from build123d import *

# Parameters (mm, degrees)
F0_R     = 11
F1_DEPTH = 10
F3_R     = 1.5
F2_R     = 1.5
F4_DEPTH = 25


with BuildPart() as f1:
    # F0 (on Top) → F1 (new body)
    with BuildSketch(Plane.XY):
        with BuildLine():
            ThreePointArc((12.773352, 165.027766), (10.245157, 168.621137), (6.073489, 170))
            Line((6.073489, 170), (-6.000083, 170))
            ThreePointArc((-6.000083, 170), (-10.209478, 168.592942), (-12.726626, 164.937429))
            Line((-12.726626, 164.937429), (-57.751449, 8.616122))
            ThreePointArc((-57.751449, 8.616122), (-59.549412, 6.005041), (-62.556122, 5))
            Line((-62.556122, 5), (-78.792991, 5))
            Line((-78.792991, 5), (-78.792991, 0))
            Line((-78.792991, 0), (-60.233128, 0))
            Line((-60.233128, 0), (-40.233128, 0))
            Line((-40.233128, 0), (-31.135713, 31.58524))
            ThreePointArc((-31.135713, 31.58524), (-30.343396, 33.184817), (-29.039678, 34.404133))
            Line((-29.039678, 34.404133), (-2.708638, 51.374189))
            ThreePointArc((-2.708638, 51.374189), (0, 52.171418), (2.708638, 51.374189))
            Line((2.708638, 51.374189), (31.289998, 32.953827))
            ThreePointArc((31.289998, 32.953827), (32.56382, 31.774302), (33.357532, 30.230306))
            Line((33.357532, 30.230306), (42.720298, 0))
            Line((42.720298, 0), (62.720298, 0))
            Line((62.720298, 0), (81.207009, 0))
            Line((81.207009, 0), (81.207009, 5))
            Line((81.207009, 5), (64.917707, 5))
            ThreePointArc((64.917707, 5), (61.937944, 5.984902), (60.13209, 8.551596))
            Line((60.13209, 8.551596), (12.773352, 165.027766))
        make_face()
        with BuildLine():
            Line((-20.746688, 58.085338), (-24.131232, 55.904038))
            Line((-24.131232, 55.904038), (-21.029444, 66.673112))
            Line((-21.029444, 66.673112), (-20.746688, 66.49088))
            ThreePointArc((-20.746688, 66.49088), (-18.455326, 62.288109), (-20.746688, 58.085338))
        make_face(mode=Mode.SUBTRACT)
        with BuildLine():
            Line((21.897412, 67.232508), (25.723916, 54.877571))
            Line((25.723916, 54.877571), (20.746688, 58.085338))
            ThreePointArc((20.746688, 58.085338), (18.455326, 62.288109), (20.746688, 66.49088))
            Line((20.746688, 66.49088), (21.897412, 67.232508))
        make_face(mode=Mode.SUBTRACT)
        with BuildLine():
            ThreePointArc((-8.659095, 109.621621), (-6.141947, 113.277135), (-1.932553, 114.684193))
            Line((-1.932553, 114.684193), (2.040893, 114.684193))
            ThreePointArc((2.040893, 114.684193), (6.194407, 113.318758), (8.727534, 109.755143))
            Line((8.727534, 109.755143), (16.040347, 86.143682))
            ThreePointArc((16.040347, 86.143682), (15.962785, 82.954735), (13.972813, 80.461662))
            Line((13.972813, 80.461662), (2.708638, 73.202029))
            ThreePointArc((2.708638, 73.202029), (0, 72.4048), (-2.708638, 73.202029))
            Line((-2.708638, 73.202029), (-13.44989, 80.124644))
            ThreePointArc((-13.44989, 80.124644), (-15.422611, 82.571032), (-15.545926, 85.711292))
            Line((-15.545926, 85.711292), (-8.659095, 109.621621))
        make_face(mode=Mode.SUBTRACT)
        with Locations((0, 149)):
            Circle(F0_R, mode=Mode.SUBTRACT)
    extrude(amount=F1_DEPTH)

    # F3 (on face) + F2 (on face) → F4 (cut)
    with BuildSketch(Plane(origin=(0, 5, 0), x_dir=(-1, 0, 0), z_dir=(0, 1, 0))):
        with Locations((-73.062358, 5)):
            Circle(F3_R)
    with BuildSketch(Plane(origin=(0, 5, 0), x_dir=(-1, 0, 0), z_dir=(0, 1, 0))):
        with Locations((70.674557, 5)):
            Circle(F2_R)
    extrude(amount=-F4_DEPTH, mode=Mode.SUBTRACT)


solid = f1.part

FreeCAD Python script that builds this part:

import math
import FreeCAD as App
import Part
import Sketcher

V = App.Vector

doc = App.newDocument("Part")
body = doc.addObject("PartDesign::Body", "Body")

# Sketch on XY plane
sketch1 = doc.addObject("Sketcher::SketchObject", "Sketch")
body.addObject(sketch1)
sketch1.AttachmentSupport = (doc.XY_Plane, [""])
sketch1.MapMode = "FlatFace"
sketch1.addGeometry(Part.ArcOfCircle(Part.Circle(V(6.073488, 162.999999, 0), V(0, 0, 1), 7.000001), math.radians(16.838858), math.radians(89.999992)), False)
sketch1.addGeometry(Part.LineSegment(V(6.073489, 170, 0), V(-6.000083, 170, 0)), False)
sketch1.addGeometry(Part.ArcOfCircle(Part.Circle(V(-6.000084, 163, 0), V(0, 0, 1), 7), math.radians(89.999994), math.radians(163.932144)), False)
sketch1.addGeometry(Part.LineSegment(V(-12.726626, 164.937429, 0), V(-57.751449, 8.616122, 0)), False)
sketch1.addGeometry(Part.ArcOfCircle(Part.Circle(V(-62.556121, 9.999999, 0), V(0, 0, 1), 4.999999), math.radians(-90.000007), math.radians(-16.06785)), False)
sketch1.addGeometry(Part.LineSegment(V(-62.556122, 5, 0), V(-78.792991, 5, 0)), False)
sketch1.addGeometry(Part.LineSegment(V(-78.792991, 5, 0), V(-78.792991, 0, 0)), False)
sketch1.addGeometry(Part.LineSegment(V(-78.792991, 0, 0), V(-40.233128, 0, 0)), False)
sketch1.addGeometry(Part.LineSegment(V(-40.233128, 0, 0), V(-31.135713, 31.58524, 0)), False)
sketch1.addGeometry(Part.ArcOfCircle(Part.Circle(V(-26.331042, 30.201364, 0), V(0, 0, 1), 4.999997), math.radians(122.801311), math.radians(163.932161)), False)
sketch1.addGeometry(Part.LineSegment(V(-29.039678, 34.404133, 0), V(-2.708638, 51.374189, 0)), False)
sketch1.addGeometry(Part.ArcOfCircle(Part.Circle(V(0, 47.171416, 0), V(0, 0, 1), 5.000002), math.radians(57.198696), math.radians(122.801304)), False)
sketch1.addGeometry(Part.LineSegment(V(2.708638, 51.374189, 0), V(31.289998, 32.953827, 0)), False)
sketch1.addGeometry(Part.ArcOfCircle(Part.Circle(V(28.581363, 28.751059, 0), V(0, 0, 1), 4.999997), math.radians(17.208492), math.radians(57.198689)), False)
sketch1.addGeometry(Part.LineSegment(V(33.357532, 30.230306, 0), V(42.720298, 0, 0)), False)
sketch1.addGeometry(Part.LineSegment(V(42.720298, 0, 0), V(81.207009, 0, 0)), False)
sketch1.addGeometry(Part.LineSegment(V(81.207009, 0, 0), V(81.207009, 5, 0)), False)
sketch1.addGeometry(Part.LineSegment(V(81.207009, 5, 0), V(64.917707, 5, 0)), False)
sketch1.addGeometry(Part.ArcOfCircle(Part.Circle(V(64.917708, 10.000001, 0), V(0, 0, 1), 5.000001), math.radians(-163.161142), math.radians(-90.000006)), False)
sketch1.addGeometry(Part.LineSegment(V(60.13209, 8.551596, 0), V(12.773352, 165.027766, 0)), False)
sketch1.addGeometry(Part.ArcOfCircle(Part.Circle(V(-23.455327, 62.288109, 0), V(0, 0, 1), 5.000001), math.radians(-57.198673), math.radians(57.198673)), False)
sketch1.addGeometry(Part.LineSegment(V(-20.746688, 58.085338, 0), V(-24.131232, 55.904038, 0)), False)
sketch1.addGeometry(Part.LineSegment(V(-24.131232, 55.904038, 0), V(-21.029444, 66.673112, 0)), False)
sketch1.addGeometry(Part.LineSegment(V(-21.029444, 66.673112, 0), V(-20.746688, 66.49088, 0)), False)
sketch1.addGeometry(Part.LineSegment(V(-15.545926, 85.711292, 0), V(-8.659095, 109.621621, 0)), False)
sketch1.addGeometry(Part.ArcOfCircle(Part.Circle(V(-1.932553, 107.684193, 0), V(0, 0, 1), 7), math.radians(90.000001), math.radians(163.932156)), False)
sketch1.addGeometry(Part.LineSegment(V(-1.932553, 114.684193, 0), V(2.040893, 114.684193, 0)), False)
sketch1.addGeometry(Part.ArcOfCircle(Part.Circle(V(2.040893, 107.684193, 0), V(0, 0, 1), 7), math.radians(17.208514), math.radians(90.000001)), False)
sketch1.addGeometry(Part.LineSegment(V(8.727534, 109.755143, 0), V(16.040347, 86.143682, 0)), False)
sketch1.addGeometry(Part.ArcOfCircle(Part.Circle(V(11.264176, 84.664432, 0), V(0, 0, 1), 4.999999), math.radians(-57.198686), math.radians(17.208519)), False)
sketch1.addGeometry(Part.LineSegment(V(13.972813, 80.461662, 0), V(2.708638, 73.202029, 0)), False)
sketch1.addGeometry(Part.ArcOfCircle(Part.Circle(V(0, 77.404802, 0), V(0, 0, 1), 5.000002), math.radians(-122.801304), math.radians(-57.198696)), False)
sketch1.addGeometry(Part.LineSegment(V(-2.708638, 73.202029, 0), V(-13.44989, 80.124644, 0)), False)
sketch1.addGeometry(Part.ArcOfCircle(Part.Circle(V(-10.741251, 84.327416, 0), V(0, 0, 1), 5.000002), math.radians(163.93217), math.radians(237.198675)), False)
sketch1.addGeometry(Part.LineSegment(V(20.746688, 66.49088, 0), V(21.897412, 67.232508, 0)), False)
sketch1.addGeometry(Part.LineSegment(V(21.897412, 67.232508, 0), V(25.723916, 54.877571, 0)), False)
sketch1.addGeometry(Part.LineSegment(V(25.723916, 54.877571, 0), V(20.746688, 58.085338, 0)), False)
sketch1.addGeometry(Part.ArcOfCircle(Part.Circle(V(23.455327, 62.288109, 0), V(0, 0, 1), 5.000001), math.radians(122.801327), math.radians(237.198673)), False)
sketch1.addGeometry(Part.Circle(V(0, 149, 0), V(0, 0, 1), 11), False)
sketch1.addConstraint(Sketcher.Constraint("Tangent", 0, 2, 1, 1))
sketch1.addConstraint(Sketcher.Constraint("Tangent", 1, 2, 2, 1))
sketch1.addConstraint(Sketcher.Constraint("Tangent", 2, 2, 3, 1))
sketch1.addConstraint(Sketcher.Constraint("Tangent", 3, 2, 4, 2))
sketch1.addConstraint(Sketcher.Constraint("Tangent", 4, 1, 5, 1))
sketch1.addConstraint(Sketcher.Constraint("Coincident", 5, 2, 6, 1))
sketch1.addConstraint(Sketcher.Constraint("Coincident", 6, 2, 7, 1))
sketch1.addConstraint(Sketcher.Constraint("Coincident", 7, 2, 8, 1))
sketch1.addConstraint(Sketcher.Constraint("Tangent", 8, 2, 9, 2))
sketch1.addConstraint(Sketcher.Constraint("Tangent", 9, 1, 10, 1))
sketch1.addConstraint(Sketcher.Constraint("Tangent", 10, 2, 11, 2))
sketch1.addConstraint(Sketcher.Constraint("Tangent", 11, 1, 12, 1))
sketch1.addConstraint(Sketcher.Constraint("Tangent", 12, 2, 13, 2))
sketch1.addConstraint(Sketcher.Constraint("Tangent", 13, 1, 14, 1))
sketch1.addConstraint(Sketcher.Constraint("Coincident", 14, 2, 15, 1))
sketch1.addConstraint(Sketcher.Constraint("Coincident", 15, 2, 16, 1))
sketch1.addConstraint(Sketcher.Constraint("Coincident", 16, 2, 17, 1))
sketch1.addConstraint(Sketcher.Constraint("Tangent", 17, 2, 18, 2))
sketch1.addConstraint(Sketcher.Constraint("Tangent", 18, 1, 19, 1))
sketch1.addConstraint(Sketcher.Constraint("Tangent", 19, 2, 0, 1))
sketch1.addConstraint(Sketcher.Constraint("Tangent", 20, 1, 21, 1))
sketch1.addConstraint(Sketcher.Constraint("Coincident", 21, 2, 22, 1))
sketch1.addConstraint(Sketcher.Constraint("Coincident", 22, 2, 23, 1))
sketch1.addConstraint(Sketcher.Constraint("Coincident", 23, 2, 20, 2))
sketch1.addConstraint(Sketcher.Constraint("Tangent", 24, 2, 25, 2))
sketch1.addConstraint(Sketcher.Constraint("Tangent", 25, 1, 26, 1))
sketch1.addConstraint(Sketcher.Constraint("Tangent", 26, 2, 27, 2))
sketch1.addConstraint(Sketcher.Constraint("Tangent", 27, 1, 28, 1))
sketch1.addConstraint(Sketcher.Constraint("Tangent", 28, 2, 29, 2))
sketch1.addConstraint(Sketcher.Constraint("Tangent", 29, 1, 30, 1))
sketch1.addConstraint(Sketcher.Constraint("Tangent", 30, 2, 31, 2))
sketch1.addConstraint(Sketcher.Constraint("Tangent", 31, 1, 32, 1))
sketch1.addConstraint(Sketcher.Constraint("Tangent", 32, 2, 33, 2))
sketch1.addConstraint(Sketcher.Constraint("Tangent", 33, 1, 24, 1))
sketch1.addConstraint(Sketcher.Constraint("Coincident", 34, 2, 35, 1))
sketch1.addConstraint(Sketcher.Constraint("Coincident", 35, 2, 36, 1))
sketch1.addConstraint(Sketcher.Constraint("Tangent", 36, 2, 37, 2))
sketch1.addConstraint(Sketcher.Constraint("Tangent", 37, 1, 34, 1))
sketch1.addConstraint(Sketcher.Constraint("Horizontal", 1))
sketch1.addConstraint(Sketcher.Constraint("Horizontal", 5))
sketch1.addConstraint(Sketcher.Constraint("Vertical", 6))
sketch1.addConstraint(Sketcher.Constraint("Horizontal", 7))
sketch1.addConstraint(Sketcher.Constraint("Horizontal", 15))
sketch1.addConstraint(Sketcher.Constraint("Vertical", 16))
sketch1.addConstraint(Sketcher.Constraint("Horizontal", 17))
sketch1.addConstraint(Sketcher.Constraint("Horizontal", 26))
sketch1.addConstraint(Sketcher.Constraint("Equal", 0, 2))
sketch1.addConstraint(Sketcher.Constraint("Equal", 4, 9))
sketch1.addConstraint(Sketcher.Constraint("Equal", 9, 13))
sketch1.addConstraint(Sketcher.Constraint("Equal", 11, 18))
sketch1.addConstraint(Sketcher.Constraint("Equal", 18, 20))
sketch1.addConstraint(Sketcher.Constraint("Equal", 2, 25))
sketch1.addConstraint(Sketcher.Constraint("Equal", 25, 27))
sketch1.addConstraint(Sketcher.Constraint("Equal", 20, 29))
sketch1.addConstraint(Sketcher.Constraint("Equal", 20, 31))
sketch1.addConstraint(Sketcher.Constraint("Equal", 31, 33))
sketch1.addConstraint(Sketcher.Constraint("Equal", 33, 37))
sketch1.addConstraint(Sketcher.Constraint("Symmetric", 20, 3, 37, 3, -2))
sketch1.addConstraint(Sketcher.Constraint("Symmetric", 10, 2, 11, 1, -2))
sketch1.addConstraint(Sketcher.Constraint("Symmetric", 30, 2, 31, 1, -2))
sketch1.addConstraint(Sketcher.Constraint("PointOnObject", 38, 3, -2))
sketch1.addConstraint(Sketcher.Constraint("PointOnObject", 6, 2, -1))
sketch1.addConstraint(Sketcher.Constraint("PointOnObject", 14, 2, -1))
sketch1.addConstraint(Sketcher.Constraint("Parallel", 3, 8))
sketch1.addConstraint(Sketcher.Constraint("Parallel", 10, 21))
sketch1.addConstraint(Sketcher.Constraint("Parallel", 8, 22))
sketch1.addConstraint(Sketcher.Constraint("Parallel", 22, 24))
sketch1.addConstraint(Sketcher.Constraint("Parallel", 14, 28))
sketch1.addConstraint(Sketcher.Constraint("Parallel", 21, 30))
sketch1.addConstraint(Sketcher.Constraint("Parallel", 30, 34))
sketch1.addConstraint(Sketcher.Constraint("Parallel", 28, 35))
sketch1.addConstraint(Sketcher.Constraint("Parallel", 32, 36))
sketch1.addConstraint(Sketcher.Constraint("Horizontal", 5, 2, 16, 2))
sketch1.addConstraint(Sketcher.Constraint("Horizontal", 23, 2, 37, 1))
sketch1.addConstraint(Sketcher.Constraint("Diameter", 38, 22.0))
sketch1.addConstraint(Sketcher.Constraint("Radius", 0, 7.000001))
sketch1.addConstraint(Sketcher.Constraint("Radius", 4, 4.999999))
sketch1.addConstraint(Sketcher.Constraint("Radius", 18, 5.000001))
sketch1.addConstraint(Sketcher.Constraint("DistanceY", 6, 2, 6, 1, 5.0))
sketch1.addConstraint(Sketcher.Constraint("DistanceY", -1, 1, 0, 3, 162.999999))
sketch1.addConstraint(Sketcher.Constraint("DistanceY", -1, 1, 38, 3, 149.0))
sketch1.addConstraint(Sketcher.Constraint("DistanceX", -1, 1, 12, 2, 31.289998))
sketch1.addConstraint(Sketcher.Constraint("Distance", 12, 34.002998))
sketch1.addConstraint(Sketcher.Constraint("DistanceX", 5, 2, 5, 1, 16.236869))
sketch1.addConstraint(Sketcher.Constraint("DistanceX", 15, 1, 15, 2, 38.486711))
sketch1.addConstraint(Sketcher.Constraint("DistanceX", 33, 3, 25, 3, 8.808698))
sketch1.addConstraint(Sketcher.Constraint("DistanceX", 12, 2, 14, 2, 11.4303))
sketch1.addConstraint(Sketcher.Constraint("DistanceX", 18, 3, 15, 2, 16.289301))
sketch1.addConstraint(Sketcher.Constraint("DistanceY", 21, 2, 20, 1, 2.1813))
sketch1.addConstraint(Sketcher.Constraint("DistanceY", 8, 2, 21, 2, 24.318798))
sketch1.addConstraint(Sketcher.Constraint("DistanceY", 37, 3, 34, 2, 4.944399))
sketch1.addConstraint(Sketcher.Constraint("DistanceX", 29, 1, 34, 2, 7.924599))
sketch1.addConstraint(Sketcher.Constraint("Distance", 3, 162.676322))
sketch1.addConstraint(Sketcher.Constraint("Distance", 8, 32.869292))
sketch1.addConstraint(Sketcher.Constraint("Distance", 10, 31.325812))
sketch1.addConstraint(Sketcher.Constraint("Distance", 23, 0.336392))
sketch1.addConstraint(Sketcher.Constraint("DistanceX", 1, 2, 1, 1, 12.073572))
sketch1.addConstraint(Sketcher.Constraint("DistanceX", 7, 1, 7, 2, 38.559863))
sketch1.addConstraint(Sketcher.Constraint("DistanceX", 26, 1, 26, 2, 3.973446))
sketch1.addConstraint(Sketcher.Constraint("DistanceY", -1, 1, 29, 3, 84.664432))
sketch1.addConstraint(Sketcher.Constraint("DistanceX", 33, 3, -1, 1, 10.741251))
pad1 = doc.addObject("PartDesign::Pad", "Pad")
body.addObject(pad1)
pad1.Profile = sketch1
pad1.Length = 10

# Sketch on XZ plane
sketch2 = doc.addObject("Sketcher::SketchObject", "Sketch001")
body.addObject(sketch2)
sketch2.AttachmentSupport = (doc.XZ_Plane, [""])
sketch2.MapMode = "FlatFace"
sketch2.AttachmentOffset = App.Placement(V(0, 0, -5), App.Rotation())
sketch2.addGeometry(Part.Circle(V(73.062358, 5, 0), V(0, 0, 1), 1.5), False)
sketch2.addGeometry(Part.Circle(V(-70.674557, 5, 0), V(0, 0, 1), 1.5), False)
sketch2.addConstraint(Sketcher.Constraint("Equal", 0, 1))
sketch2.addConstraint(Sketcher.Constraint("Horizontal", 0, 3, 1, 3))
sketch2.addConstraint(Sketcher.Constraint("Diameter", 0, 3.0))
sketch2.addConstraint(Sketcher.Constraint("DistanceY", -1, 1, 0, 3, 5.0))
sketch2.addConstraint(Sketcher.Constraint("DistanceX", -1, 1, 0, 3, 73.062358))
sketch2.addConstraint(Sketcher.Constraint("DistanceX", 1, 3, -1, 1, 70.674557))
pocket1 = doc.addObject("PartDesign::Pocket", "Pocket")
body.addObject(pocket1)
pocket1.Profile = sketch2
pocket1.Length = 25
pocket1.Reversed = True

doc.recompute()
